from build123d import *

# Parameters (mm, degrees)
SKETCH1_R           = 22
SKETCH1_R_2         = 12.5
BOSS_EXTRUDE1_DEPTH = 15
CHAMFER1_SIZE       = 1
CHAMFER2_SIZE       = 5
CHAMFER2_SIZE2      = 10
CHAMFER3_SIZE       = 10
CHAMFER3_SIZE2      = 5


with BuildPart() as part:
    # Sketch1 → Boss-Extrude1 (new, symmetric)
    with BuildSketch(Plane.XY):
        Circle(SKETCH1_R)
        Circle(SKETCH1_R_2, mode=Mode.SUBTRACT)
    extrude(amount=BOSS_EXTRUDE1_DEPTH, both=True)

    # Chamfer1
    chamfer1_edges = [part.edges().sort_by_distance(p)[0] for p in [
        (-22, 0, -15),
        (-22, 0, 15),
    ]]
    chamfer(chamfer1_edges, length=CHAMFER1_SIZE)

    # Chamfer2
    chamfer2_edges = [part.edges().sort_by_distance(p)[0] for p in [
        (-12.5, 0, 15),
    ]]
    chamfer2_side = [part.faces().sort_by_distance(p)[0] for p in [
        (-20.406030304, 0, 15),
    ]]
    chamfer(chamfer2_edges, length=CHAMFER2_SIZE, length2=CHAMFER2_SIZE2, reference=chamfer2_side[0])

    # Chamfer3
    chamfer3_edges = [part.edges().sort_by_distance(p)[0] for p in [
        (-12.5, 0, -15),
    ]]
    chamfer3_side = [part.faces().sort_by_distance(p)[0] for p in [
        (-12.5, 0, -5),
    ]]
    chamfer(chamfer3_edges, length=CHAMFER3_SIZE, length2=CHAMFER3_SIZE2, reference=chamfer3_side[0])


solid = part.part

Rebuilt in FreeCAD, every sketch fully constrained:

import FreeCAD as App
import Part
import Sketcher
from FreeCAD import Vector


def edges_at(feature, points):
    """Names of the edges that pass closest to the given points."""
    edges = feature.Shape.Edges
    near = lambda p: min(range(len(edges)), key=lambda i: edges[i].distToShape(Part.Vertex(*p))[0])
    return sorted({f"Edge{near(p) + 1}" for p in points})

doc = App.newDocument("Part")
body = doc.addObject("PartDesign::Body", "Body")

# Sketch on XY plane
sketch1 = body.newObject("Sketcher::SketchObject", "Sketch")
sketch1.AttachmentSupport = (doc.getObject("XY_Plane"), [""])
sketch1.MapMode = "FlatFace"
sketch1.addGeometry(Part.Circle(Vector(0, 0, 0), Vector(0, 0, 1), 22), False)
sketch1.addGeometry(Part.Circle(Vector(0, 0, 0), Vector(0, 0, 1), 12.5), False)
sketch1.addConstraint(Sketcher.Constraint("Coincident", 0, 3, -1, 1))
sketch1.addConstraint(Sketcher.Constraint("Coincident", 1, 3, -1, 1))
sketch1.addConstraint(Sketcher.Constraint("Diameter", 0, 44.0))
sketch1.addConstraint(Sketcher.Constraint("Diameter", 1, 25.0))
pad1 = body.newObject("PartDesign::Pad", "Pad")
pad1.Profile = sketch1
pad1.Length = 30
pad1.Midplane = True
doc.recompute()

chamfer = body.newObject("PartDesign::Chamfer", "Chamfer")
chamfer.Base = (pad1, edges_at(pad1, [(-22, 0, -15), (-22, 0, 15)]))
chamfer.Size = 1
doc.recompute()

chamfer2 = body.newObject("PartDesign::Chamfer", "Chamfer001")
chamfer2.Base = (chamfer, edges_at(chamfer, [(-12.5, 0, 15)]))
chamfer2.ChamferType = "Two distances"
chamfer2.Size = 5
chamfer2.Size2 = 10
doc.recompute()

chamfer3 = body.newObject("PartDesign::Chamfer", "Chamfer002")
chamfer3.Base = (chamfer2, edges_at(chamfer2, [(-12.5, 0, -15)]))
chamfer3.ChamferType = "Two distances"
chamfer3.Size = 10
chamfer3.Size2 = 5

doc.recompute()
